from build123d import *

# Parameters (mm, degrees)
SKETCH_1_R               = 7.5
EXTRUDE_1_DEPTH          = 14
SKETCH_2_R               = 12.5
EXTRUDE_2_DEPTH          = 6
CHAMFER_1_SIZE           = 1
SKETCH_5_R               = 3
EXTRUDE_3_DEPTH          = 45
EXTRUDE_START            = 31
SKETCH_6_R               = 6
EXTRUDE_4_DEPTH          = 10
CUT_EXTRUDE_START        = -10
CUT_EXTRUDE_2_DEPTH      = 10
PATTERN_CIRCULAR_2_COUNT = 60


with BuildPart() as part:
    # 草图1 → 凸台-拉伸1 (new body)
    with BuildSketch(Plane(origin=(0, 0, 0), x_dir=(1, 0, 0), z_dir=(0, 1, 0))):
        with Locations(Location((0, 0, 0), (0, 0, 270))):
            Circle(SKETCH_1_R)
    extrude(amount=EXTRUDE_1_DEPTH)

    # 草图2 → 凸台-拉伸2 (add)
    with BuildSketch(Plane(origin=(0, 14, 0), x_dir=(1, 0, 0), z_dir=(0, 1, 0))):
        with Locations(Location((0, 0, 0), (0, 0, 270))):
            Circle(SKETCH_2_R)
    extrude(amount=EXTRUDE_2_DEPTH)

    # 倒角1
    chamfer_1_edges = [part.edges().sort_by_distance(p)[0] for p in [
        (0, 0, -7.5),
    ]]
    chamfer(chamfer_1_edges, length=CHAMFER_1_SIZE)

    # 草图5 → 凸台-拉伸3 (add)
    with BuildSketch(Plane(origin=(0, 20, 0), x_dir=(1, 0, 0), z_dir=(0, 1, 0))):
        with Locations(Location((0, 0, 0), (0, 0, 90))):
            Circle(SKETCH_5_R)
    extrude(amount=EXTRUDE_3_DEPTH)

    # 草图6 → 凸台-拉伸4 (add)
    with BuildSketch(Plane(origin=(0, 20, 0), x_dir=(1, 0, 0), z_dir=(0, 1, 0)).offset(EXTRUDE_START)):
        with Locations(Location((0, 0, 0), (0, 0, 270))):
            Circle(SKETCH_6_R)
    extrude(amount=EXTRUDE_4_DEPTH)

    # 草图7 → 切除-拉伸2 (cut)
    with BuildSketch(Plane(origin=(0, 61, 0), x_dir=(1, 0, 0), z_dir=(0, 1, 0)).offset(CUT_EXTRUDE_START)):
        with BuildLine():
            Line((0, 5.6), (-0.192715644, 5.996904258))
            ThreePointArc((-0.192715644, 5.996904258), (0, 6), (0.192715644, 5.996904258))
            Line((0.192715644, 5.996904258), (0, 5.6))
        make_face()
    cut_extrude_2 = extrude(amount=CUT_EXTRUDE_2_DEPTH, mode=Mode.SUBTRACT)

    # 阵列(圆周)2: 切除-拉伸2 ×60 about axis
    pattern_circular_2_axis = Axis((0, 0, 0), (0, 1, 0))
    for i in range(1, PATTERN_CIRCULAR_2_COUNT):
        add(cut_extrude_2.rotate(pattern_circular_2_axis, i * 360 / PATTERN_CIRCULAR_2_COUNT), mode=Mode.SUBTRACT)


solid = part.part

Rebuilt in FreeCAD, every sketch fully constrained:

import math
import FreeCAD as App
import Part
import Sketcher
from FreeCAD import Vector
Q = App.Units.Quantity


def edges_at(feature, points):
    """Names of the edges that pass closest to the given points."""
    edges = feature.Shape.Edges
    near = lambda p: min(range(len(edges)), key=lambda i: edges[i].distToShape(Part.Vertex(*p))[0])
    return sorted({f"Edge{near(p) + 1}" for p in points})

doc = App.newDocument("Part")
params = doc.addObject("Spreadsheet::Sheet", "Params")
for row, (alias, value) in enumerate([
    ("sketch1_diameter", "15 mm"),
    ("pad1_length", "14 mm"),
    ("sketch2_diameter", "25 mm"),
    ("pad2_length", "6 mm"),
    ("chamfer_size", "1 mm"),
    ("sketch3_diameter", "6 mm"),
    ("pad3_length", "45 mm"),
    ("sketch4_diameter", "12 mm"),
    ("pad4_length", "10 mm"),
    ("sketch5_radius", "6 mm"),
    ("pocket1_length", "10 mm"),
], start=1):
    params.set(f"A{row}", alias)
    params.set(f"B{row}", "=" + value)
    params.setAlias(f"B{row}", alias)

body = doc.addObject("PartDesign::Body", "Body")

sketch1 = body.newObject("Sketcher::SketchObject", "Sketch")
sketch1.AttachmentSupport = (doc.getObject("XZ_Plane"), [""])
sketch1.MapMode = "FlatFace"
sketch1.addGeometry(Part.Circle(Vector(0, 0, 0), Vector(0, 0, 1), 7.5), False)
sketch1.addConstraint(Sketcher.Constraint("Coincident", 0, 3, -1, 1))
sketch1.addConstraint(Sketcher.Constraint("Diameter", 0, Q("15 mm")))
sketch1.setExpression("Constraints[1]", "Params.sketch1_diameter")
pad1 = body.newObject("PartDesign::Pad", "Pad")
pad1.Profile = sketch1
pad1.setExpression("Length", "Params.pad1_length")
pad1.Reversed = True

sketch2 = body.newObject("Sketcher::SketchObject", "Sketch001")
sketch2.AttachmentSupport = (doc.getObject("XZ_Plane"), [""])
sketch2.MapMode = "FlatFace"
sketch2.AttachmentOffset = App.Placement(Vector(0, 0, -14), App.Rotation())
sketch2.addGeometry(Part.Circle(Vector(0, 0, 0), Vector(0, 0, 1), 12.5), False)
sketch2.addConstraint(Sketcher.Constraint("Coincident", 0, 3, -1, 1))
sketch2.addConstraint(Sketcher.Constraint("Diameter", 0, Q("25 mm")))
sketch2.setExpression("Constraints[1]", "Params.sketch2_diameter")
pad2 = body.newObject("PartDesign::Pad", "Pad001")
pad2.Profile = sketch2
pad2.setExpression("Length", "Params.pad2_length")
pad2.Reversed = True
doc.recompute()

chamfer = body.newObject("PartDesign::Chamfer", "Chamfer")
chamfer.Base = (pad2, edges_at(pad2, [(0, 0, -7.5)]))
chamfer.setExpression("Size", "Params.chamfer_size")

sketch3 = body.newObject("Sketcher::SketchObject", "Sketch002")
sketch3.AttachmentSupport = (doc.getObject("XZ_Plane"), [""])
sketch3.MapMode = "FlatFace"
sketch3.AttachmentOffset = App.Placement(Vector(0, 0, -20), App.Rotation())
sketch3.addGeometry(Part.Circle(Vector(0, 0, 0), Vector(0, 0, 1), 3), False)
sketch3.addConstraint(Sketcher.Constraint("Coincident", 0, 3, -1, 1))
sketch3.addConstraint(Sketcher.Constraint("Diameter", 0, Q("6 mm")))
sketch3.setExpression("Constraints[1]", "Params.sketch3_diameter")
pad3 = body.newObject("PartDesign::Pad", "Pad002")
pad3.Profile = sketch3
pad3.setExpression("Length", "Params.pad3_length")
pad3.Reversed = True

sketch4 = body.newObject("Sketcher::SketchObject", "Sketch003")
sketch4.AttachmentSupport = (doc.getObject("XZ_Plane"), [""])
sketch4.MapMode = "FlatFace"
sketch4.AttachmentOffset = App.Placement(Vector(0, 0, -51), App.Rotation())
sketch4.addGeometry(Part.Circle(Vector(0, 0, 0), Vector(0, 0, 1), 6), False)
sketch4.addConstraint(Sketcher.Constraint("Coincident", 0, 3, -1, 1))
sketch4.addConstraint(Sketcher.Constraint("Diameter", 0, Q("12 mm")))
sketch4.setExpression("Constraints[1]", "Params.sketch4_diameter")
pad4 = body.newObject("PartDesign::Pad", "Pad003")
pad4.Profile = sketch4
pad4.setExpression("Length", "Params.pad4_length")
pad4.Reversed = True

sketch5 = body.newObject("Sketcher::SketchObject", "Sketch004")
sketch5.AttachmentSupport = (doc.getObject("XZ_Plane"), [""])
sketch5.MapMode = "FlatFace"
sketch5.AttachmentOffset = App.Placement(Vector(0, 0, -51), App.Rotation())
sketch5.addGeometry(Part.LineSegment(Vector(-0.192716, -5.996904, 0), Vector(0, -5.6, 0)), False)
sketch5.addGeometry(Part.LineSegment(Vector(0, -5.6, 0), Vector(0.192716, -5.996904, 0)), False)
sketch5.addGeometry(Part.ArcOfCircle(Part.Circle(Vector(0, 0, 0), Vector(0, 0, 1), 6), math.radians(-91.840615), math.radians(-88.159385)), False)
sketch5.addConstraint(Sketcher.Constraint("Coincident", 0, 2, 1, 1))
sketch5.addConstraint(Sketcher.Constraint("Coincident", 1, 2, 2, 2))
sketch5.addConstraint(Sketcher.Constraint("Coincident", 2, 1, 0, 1))
sketch5.addConstraint(Sketcher.Constraint("Coincident", 2, 3, -1, 1))
sketch5.addConstraint(Sketcher.Constraint("PointOnObject", 0, 2, -2))
sketch5.addConstraint(Sketcher.Constraint("Horizontal", 1, 2, 2, 1))
sketch5.addConstraint(Sketcher.Constraint("Radius", 2, Q("6 mm")))
sketch5.addConstraint(Sketcher.Constraint("DistanceY", 0, 2, -1, 1, Q("5.6 mm")))
sketch5.addConstraint(Sketcher.Constraint("DistanceX", 2, 1, 1, 2, Q("0.385431 mm")))
sketch5.setExpression("Constraints[6]", "Params.sketch5_radius")
pocket1 = body.newObject("PartDesign::Pocket", "Pocket")
pocket1.Profile = sketch5
pocket1.setExpression("Length", "Params.pocket1_length")
doc.recompute()

polarpattern = body.newObject("PartDesign::PolarPattern", "PolarPattern")
polarpattern.Originals = [pocket1]
polarpattern.Axis = (doc.getObject("Y_Axis"), [""])
polarpattern.Angle = 360
polarpattern.Occurrences = 60
body.Tip = polarpattern

doc.recompute()
